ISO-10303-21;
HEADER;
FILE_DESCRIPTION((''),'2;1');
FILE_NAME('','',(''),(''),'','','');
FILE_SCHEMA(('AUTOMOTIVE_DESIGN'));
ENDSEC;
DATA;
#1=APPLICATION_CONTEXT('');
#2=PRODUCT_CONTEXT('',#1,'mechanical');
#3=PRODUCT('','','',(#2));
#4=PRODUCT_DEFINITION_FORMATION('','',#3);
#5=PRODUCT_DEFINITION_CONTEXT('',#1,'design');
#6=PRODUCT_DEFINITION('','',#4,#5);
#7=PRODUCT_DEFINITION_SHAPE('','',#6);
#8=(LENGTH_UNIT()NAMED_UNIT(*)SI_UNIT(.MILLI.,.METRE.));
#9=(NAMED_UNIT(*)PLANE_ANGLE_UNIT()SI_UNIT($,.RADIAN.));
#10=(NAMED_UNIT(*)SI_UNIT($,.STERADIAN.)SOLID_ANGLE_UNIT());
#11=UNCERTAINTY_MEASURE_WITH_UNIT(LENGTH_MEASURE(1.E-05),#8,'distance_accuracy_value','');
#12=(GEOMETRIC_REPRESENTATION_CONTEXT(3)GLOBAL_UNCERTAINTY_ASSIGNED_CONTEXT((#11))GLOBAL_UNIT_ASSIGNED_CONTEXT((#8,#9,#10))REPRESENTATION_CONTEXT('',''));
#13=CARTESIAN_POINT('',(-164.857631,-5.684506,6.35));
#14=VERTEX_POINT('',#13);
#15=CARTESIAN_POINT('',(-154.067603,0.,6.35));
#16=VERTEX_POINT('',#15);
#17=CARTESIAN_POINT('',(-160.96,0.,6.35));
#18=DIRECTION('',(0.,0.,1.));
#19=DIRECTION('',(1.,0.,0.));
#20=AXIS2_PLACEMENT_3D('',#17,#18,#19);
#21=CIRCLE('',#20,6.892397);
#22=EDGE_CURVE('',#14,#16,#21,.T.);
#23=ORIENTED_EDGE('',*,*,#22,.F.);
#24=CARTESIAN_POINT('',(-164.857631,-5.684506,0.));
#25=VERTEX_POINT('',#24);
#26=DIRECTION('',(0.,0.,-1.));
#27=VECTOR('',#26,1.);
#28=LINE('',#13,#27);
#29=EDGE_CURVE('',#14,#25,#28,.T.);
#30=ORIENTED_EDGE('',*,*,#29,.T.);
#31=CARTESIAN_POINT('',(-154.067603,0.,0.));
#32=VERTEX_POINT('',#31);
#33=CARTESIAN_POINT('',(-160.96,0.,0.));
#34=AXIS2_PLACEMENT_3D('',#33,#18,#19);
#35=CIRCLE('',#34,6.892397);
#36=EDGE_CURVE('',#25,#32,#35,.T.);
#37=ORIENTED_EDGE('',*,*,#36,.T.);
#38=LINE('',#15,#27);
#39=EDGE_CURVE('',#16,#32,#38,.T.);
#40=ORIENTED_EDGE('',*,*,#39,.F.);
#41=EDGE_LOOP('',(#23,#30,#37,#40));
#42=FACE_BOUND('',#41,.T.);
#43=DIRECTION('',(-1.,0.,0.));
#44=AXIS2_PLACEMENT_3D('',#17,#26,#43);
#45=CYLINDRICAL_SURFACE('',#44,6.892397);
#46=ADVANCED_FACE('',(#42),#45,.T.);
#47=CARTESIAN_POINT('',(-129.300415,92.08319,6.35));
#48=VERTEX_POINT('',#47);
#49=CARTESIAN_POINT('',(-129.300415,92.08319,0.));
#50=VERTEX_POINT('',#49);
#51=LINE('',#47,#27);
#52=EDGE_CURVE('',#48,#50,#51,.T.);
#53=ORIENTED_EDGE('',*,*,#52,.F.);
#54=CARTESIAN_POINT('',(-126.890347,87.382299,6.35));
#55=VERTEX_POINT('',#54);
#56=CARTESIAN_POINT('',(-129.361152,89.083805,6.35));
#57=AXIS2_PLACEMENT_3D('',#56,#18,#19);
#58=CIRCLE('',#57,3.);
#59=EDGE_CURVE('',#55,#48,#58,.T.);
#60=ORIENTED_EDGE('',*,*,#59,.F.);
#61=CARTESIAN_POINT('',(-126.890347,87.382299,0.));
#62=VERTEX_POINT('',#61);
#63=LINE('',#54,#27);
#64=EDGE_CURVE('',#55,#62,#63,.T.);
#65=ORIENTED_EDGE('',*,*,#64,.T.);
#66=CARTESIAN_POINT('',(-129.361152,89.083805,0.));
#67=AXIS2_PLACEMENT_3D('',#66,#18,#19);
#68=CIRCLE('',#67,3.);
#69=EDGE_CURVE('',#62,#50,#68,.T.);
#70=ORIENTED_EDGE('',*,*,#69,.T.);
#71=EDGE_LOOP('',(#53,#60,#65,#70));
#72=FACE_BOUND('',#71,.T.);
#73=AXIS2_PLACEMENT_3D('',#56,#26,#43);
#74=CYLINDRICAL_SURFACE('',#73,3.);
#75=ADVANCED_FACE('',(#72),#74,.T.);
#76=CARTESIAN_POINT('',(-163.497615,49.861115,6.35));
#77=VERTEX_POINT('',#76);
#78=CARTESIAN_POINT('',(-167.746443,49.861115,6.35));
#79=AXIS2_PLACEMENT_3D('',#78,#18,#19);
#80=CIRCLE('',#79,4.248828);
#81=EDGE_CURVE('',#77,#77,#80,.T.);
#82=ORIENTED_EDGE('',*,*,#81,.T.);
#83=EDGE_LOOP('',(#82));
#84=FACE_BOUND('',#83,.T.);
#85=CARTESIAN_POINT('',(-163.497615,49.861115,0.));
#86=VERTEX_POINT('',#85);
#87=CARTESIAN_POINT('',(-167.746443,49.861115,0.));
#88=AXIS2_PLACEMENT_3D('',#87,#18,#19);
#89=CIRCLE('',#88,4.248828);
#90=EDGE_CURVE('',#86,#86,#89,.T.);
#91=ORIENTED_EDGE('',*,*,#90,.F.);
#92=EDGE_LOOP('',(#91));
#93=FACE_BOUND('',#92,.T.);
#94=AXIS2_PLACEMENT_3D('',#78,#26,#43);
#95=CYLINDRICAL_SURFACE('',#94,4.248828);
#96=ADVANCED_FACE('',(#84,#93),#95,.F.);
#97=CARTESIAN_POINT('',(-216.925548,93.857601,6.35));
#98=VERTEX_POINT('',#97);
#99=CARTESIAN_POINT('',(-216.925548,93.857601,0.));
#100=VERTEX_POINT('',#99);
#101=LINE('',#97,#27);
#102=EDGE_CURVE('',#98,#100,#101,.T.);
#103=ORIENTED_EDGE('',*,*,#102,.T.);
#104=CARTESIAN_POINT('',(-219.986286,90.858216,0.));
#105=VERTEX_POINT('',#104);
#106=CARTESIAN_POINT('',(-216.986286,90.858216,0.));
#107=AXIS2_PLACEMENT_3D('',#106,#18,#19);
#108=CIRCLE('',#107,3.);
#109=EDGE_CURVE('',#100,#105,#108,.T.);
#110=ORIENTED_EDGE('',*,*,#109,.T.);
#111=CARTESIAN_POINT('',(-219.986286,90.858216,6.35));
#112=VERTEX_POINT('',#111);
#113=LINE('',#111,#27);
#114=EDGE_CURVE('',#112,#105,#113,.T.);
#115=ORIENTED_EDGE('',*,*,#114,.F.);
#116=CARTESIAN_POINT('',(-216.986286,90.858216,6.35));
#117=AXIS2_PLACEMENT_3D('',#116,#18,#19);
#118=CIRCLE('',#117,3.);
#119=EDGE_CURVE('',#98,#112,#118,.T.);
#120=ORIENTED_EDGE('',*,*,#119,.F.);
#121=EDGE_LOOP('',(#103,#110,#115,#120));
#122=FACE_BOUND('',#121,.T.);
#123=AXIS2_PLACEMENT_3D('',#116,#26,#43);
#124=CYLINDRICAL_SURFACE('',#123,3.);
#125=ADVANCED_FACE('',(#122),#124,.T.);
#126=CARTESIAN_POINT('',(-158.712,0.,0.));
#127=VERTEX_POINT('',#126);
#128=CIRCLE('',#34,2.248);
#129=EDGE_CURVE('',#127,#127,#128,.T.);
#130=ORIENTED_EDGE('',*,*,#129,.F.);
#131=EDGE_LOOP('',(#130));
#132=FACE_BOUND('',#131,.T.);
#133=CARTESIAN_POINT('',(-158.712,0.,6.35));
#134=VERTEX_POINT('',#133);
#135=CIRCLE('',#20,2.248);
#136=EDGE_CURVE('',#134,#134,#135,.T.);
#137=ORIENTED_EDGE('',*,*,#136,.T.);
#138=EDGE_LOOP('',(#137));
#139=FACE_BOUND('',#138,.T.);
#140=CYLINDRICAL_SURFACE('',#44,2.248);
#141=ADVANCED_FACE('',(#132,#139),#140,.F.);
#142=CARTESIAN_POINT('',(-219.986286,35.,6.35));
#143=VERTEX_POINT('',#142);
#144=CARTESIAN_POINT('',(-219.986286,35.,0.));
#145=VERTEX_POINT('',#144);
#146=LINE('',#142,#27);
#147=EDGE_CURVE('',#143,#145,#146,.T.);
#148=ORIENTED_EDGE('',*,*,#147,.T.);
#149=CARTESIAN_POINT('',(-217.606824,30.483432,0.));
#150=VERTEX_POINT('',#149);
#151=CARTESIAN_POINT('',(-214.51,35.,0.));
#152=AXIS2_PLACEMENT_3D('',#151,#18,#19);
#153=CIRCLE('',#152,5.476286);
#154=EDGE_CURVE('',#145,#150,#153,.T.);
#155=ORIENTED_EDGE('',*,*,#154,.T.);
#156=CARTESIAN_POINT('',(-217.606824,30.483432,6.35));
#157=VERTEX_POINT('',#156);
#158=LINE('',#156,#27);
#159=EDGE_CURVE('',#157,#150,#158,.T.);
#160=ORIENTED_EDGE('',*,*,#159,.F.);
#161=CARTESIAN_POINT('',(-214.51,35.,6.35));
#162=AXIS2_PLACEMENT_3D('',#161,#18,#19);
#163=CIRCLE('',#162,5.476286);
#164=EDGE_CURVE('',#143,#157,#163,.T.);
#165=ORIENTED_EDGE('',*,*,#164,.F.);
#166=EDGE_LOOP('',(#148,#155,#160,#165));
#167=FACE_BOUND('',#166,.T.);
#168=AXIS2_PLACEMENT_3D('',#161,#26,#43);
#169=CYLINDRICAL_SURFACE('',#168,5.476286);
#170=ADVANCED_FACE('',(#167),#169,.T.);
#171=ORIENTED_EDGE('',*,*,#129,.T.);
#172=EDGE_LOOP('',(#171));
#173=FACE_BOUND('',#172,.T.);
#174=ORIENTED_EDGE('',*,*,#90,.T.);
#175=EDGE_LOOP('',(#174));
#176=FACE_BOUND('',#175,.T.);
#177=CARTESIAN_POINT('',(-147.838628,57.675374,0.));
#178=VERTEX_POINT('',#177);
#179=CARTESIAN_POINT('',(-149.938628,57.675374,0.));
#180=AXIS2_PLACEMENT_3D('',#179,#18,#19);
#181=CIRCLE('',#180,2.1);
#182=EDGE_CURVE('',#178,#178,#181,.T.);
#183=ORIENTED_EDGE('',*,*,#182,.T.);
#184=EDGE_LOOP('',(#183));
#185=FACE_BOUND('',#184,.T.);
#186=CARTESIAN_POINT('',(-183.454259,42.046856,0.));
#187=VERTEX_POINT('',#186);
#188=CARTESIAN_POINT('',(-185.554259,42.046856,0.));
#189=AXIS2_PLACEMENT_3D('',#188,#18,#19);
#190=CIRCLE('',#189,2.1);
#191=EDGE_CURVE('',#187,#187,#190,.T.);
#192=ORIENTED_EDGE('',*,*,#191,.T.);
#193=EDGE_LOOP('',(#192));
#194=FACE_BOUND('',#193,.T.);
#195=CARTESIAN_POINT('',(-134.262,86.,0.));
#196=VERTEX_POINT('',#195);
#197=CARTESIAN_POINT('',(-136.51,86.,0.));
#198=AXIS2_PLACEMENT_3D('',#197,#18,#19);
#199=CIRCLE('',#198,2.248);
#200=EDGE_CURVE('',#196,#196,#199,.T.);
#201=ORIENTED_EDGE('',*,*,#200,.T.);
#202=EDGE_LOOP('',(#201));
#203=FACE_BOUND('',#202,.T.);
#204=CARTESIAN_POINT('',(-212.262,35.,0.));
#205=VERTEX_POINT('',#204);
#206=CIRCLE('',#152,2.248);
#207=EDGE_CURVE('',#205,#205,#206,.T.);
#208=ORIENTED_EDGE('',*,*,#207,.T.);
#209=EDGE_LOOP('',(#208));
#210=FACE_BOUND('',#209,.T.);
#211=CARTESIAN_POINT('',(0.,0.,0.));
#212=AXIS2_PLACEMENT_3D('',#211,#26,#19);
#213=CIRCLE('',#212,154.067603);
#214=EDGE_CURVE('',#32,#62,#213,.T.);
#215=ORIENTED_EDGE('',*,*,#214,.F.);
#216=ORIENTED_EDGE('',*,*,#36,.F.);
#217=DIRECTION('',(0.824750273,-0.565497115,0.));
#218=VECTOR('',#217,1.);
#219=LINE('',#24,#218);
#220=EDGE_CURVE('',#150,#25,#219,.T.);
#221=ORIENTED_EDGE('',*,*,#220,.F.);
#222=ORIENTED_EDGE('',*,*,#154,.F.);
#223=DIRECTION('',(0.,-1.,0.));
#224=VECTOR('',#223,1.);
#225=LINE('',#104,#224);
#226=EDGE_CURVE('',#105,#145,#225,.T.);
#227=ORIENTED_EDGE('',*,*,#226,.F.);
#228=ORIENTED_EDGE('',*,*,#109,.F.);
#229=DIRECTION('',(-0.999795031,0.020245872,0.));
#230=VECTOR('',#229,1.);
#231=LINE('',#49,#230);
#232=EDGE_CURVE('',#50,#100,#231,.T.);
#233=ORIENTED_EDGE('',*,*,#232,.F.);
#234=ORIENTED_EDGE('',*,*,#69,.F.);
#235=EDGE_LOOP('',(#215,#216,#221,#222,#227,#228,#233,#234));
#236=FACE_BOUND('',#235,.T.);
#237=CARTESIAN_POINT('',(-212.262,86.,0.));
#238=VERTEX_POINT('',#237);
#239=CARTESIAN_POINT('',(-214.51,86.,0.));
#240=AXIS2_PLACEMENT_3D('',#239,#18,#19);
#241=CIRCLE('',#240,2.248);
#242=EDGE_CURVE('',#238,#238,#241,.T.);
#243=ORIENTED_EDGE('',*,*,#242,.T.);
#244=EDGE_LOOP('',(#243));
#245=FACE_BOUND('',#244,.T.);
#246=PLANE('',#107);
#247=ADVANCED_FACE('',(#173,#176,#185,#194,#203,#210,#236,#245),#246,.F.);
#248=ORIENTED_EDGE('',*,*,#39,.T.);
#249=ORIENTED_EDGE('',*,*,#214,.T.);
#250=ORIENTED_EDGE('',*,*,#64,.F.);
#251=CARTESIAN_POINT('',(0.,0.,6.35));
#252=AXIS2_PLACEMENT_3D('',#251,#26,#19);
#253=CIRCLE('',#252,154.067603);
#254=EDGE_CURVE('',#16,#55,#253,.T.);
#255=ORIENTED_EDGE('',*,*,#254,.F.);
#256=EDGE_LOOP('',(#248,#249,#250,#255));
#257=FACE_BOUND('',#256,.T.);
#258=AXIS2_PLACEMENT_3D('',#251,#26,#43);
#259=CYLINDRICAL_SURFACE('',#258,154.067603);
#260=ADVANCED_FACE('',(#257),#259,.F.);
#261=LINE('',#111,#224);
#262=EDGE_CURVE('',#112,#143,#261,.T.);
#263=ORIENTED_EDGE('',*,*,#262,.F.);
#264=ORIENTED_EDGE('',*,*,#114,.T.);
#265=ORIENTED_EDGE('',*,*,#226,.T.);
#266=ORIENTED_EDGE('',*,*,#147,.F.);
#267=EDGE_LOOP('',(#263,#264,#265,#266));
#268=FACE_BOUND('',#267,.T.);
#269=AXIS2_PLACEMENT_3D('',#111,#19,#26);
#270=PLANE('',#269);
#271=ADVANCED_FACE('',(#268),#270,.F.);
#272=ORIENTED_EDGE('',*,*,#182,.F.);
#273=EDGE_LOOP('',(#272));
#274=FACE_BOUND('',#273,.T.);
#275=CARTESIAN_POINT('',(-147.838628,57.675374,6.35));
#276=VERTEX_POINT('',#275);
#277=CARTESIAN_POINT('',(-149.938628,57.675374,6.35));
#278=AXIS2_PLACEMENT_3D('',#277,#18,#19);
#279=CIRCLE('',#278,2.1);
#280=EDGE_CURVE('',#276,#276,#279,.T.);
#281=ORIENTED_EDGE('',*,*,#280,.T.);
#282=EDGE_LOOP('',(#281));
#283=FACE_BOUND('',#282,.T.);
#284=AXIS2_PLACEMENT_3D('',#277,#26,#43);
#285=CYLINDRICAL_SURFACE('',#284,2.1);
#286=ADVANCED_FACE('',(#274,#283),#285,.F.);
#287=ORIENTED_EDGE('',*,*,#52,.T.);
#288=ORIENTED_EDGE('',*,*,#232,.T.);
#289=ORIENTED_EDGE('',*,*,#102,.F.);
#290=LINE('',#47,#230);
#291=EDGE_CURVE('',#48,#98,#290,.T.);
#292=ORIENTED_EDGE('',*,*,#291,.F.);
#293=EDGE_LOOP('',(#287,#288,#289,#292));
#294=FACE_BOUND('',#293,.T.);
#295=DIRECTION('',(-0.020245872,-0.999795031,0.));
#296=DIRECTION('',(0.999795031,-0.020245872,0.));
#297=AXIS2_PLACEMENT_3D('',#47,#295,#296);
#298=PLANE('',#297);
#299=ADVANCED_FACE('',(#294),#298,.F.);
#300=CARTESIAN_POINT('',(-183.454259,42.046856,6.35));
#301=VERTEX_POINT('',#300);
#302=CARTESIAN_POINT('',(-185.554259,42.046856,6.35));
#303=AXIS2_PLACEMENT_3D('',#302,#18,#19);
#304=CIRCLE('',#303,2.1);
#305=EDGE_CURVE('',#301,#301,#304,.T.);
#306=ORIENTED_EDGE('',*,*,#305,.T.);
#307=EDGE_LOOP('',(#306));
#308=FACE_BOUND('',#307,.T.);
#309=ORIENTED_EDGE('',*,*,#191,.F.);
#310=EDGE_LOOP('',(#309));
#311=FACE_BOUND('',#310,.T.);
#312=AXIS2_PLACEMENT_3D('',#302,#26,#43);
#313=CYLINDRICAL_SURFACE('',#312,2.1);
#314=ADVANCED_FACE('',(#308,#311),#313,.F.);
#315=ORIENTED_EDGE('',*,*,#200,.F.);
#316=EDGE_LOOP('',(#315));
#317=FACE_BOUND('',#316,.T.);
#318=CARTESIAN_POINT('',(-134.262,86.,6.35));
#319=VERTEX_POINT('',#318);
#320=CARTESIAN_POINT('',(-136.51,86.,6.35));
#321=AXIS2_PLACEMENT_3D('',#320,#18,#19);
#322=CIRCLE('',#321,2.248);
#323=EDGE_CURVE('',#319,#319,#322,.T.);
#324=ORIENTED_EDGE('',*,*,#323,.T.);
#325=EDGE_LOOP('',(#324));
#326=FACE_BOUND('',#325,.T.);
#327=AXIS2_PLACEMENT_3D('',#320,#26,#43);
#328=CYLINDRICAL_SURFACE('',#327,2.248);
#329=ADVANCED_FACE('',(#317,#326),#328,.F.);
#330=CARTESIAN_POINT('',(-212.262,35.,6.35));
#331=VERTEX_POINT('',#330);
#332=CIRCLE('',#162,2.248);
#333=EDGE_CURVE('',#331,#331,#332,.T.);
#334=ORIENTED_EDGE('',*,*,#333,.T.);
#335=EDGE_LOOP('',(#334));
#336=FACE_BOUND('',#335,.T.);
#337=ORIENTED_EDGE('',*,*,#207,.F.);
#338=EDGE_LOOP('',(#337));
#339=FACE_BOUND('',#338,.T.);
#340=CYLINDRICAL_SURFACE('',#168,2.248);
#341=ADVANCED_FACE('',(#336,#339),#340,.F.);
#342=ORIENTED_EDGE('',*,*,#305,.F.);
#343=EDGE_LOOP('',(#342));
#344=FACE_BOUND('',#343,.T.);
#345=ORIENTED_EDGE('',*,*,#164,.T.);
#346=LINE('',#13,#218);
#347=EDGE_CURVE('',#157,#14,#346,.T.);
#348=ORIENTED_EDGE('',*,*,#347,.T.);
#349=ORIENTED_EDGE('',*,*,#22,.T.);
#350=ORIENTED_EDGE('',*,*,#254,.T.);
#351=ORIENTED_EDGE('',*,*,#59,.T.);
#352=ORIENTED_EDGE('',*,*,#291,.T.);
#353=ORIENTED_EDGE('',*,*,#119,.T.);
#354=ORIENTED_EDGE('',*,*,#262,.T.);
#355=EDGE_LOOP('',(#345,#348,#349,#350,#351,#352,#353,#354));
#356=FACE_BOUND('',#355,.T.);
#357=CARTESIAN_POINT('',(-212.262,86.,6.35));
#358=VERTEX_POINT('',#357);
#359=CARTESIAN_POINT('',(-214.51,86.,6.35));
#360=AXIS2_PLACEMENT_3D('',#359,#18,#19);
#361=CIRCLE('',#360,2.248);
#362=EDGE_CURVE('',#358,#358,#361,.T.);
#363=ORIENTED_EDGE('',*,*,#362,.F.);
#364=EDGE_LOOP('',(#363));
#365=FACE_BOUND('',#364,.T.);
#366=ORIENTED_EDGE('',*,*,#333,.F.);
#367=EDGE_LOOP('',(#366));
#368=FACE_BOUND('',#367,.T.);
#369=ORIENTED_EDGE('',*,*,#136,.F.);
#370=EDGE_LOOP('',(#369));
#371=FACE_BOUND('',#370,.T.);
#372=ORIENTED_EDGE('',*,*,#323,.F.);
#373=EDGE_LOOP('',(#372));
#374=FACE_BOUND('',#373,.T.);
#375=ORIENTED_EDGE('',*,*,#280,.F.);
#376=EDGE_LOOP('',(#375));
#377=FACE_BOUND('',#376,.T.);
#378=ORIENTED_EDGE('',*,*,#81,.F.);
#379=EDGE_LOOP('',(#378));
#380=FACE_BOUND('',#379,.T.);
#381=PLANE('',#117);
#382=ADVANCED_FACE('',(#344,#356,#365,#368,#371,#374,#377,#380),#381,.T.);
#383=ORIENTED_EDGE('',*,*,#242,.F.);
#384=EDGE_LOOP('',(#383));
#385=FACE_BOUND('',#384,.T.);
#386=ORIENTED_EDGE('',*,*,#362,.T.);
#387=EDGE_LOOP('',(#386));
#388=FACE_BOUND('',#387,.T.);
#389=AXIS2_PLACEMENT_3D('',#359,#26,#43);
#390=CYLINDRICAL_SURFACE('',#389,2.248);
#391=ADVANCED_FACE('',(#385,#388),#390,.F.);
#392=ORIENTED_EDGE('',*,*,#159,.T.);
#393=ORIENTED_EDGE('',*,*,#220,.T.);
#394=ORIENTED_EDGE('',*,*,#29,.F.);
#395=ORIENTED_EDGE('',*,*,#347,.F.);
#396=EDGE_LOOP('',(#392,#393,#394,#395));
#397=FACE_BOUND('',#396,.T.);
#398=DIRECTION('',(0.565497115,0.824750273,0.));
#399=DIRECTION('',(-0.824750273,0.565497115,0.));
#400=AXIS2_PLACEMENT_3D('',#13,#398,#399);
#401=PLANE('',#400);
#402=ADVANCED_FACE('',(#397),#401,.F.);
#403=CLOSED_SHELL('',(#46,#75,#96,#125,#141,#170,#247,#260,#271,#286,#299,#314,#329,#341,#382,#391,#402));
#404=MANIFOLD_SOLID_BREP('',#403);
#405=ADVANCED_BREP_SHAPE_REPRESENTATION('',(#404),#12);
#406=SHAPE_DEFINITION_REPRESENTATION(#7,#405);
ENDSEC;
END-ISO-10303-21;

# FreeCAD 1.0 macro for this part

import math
import FreeCAD as App
import Part
import Sketcher

V = App.Vector
Q = App.Units.Quantity

doc = App.newDocument("Part")
body = doc.addObject("PartDesign::Body", "Body")

# Sketch on XY plane
sketch1 = body.newObject("Sketcher::SketchObject", "Sketch")
sketch1.AttachmentSupport = (doc.getObject("XY_Plane"), [""])
sketch1.MapMode = "FlatFace"
sketch1.addGeometry(Part.LineSegment(V(-217.606824, 30.483432, 0), V(-164.857631, -5.684506, 0)), False)
sketch1.addGeometry(Part.ArcOfCircle(Part.Circle(V(-160.96, 0, 0), V(0, 0, 1), 6.892397), math.radians(-124.436819), math.radians(0)), False)
sketch1.addGeometry(Part.ArcOfCircle(Part.Circle(V(0, 0, 0), V(0, 0, 1), 154.067603), math.radians(145.446985), math.radians(180)), False)
sketch1.addGeometry(Part.ArcOfCircle(Part.Circle(V(-129.361152, 89.083805, 0), V(0, 0, 1), 3), math.radians(-34.553015), math.radians(88.839918)), False)
sketch1.addGeometry(Part.LineSegment(V(-129.300415, 92.08319, 0), V(-216.925548, 93.857601, 0)), False)
sketch1.addGeometry(Part.ArcOfCircle(Part.Circle(V(-216.986286, 90.858216, 0), V(0, 0, 1), 3), math.radians(88.839918), math.radians(180)), False)
sketch1.addGeometry(Part.LineSegment(V(-219.986286, 90.858216, 0), V(-219.986286, 35, 0)), False)
sketch1.addGeometry(Part.ArcOfCircle(Part.Circle(V(-214.51, 35, 0), V(0, 0, 1), 5.476286), math.radians(180), math.radians(235.563181)), False)
sketch1.addGeometry(Part.Circle(V(-160.96, 0, 0), V(0, 0, 1), 2.248), False)
sketch1.addGeometry(Part.Circle(V(-185.554259, 42.046856, 0), V(0, 0, 1), 2.1), False)
sketch1.addGeometry(Part.Circle(V(-214.51, 35, 0), V(0, 0, 1), 2.248), False)
sketch1.addGeometry(Part.Circle(V(-149.938628, 57.675374, 0), V(0, 0, 1), 2.1), False)
sketch1.addGeometry(Part.Circle(V(-167.746443, 49.861115, 0), V(0, 0, 1), 4.248828), False)
sketch1.addGeometry(Part.Circle(V(-136.51, 86, 0), V(0, 0, 1), 2.248), False)
sketch1.addGeometry(Part.Circle(V(-214.51, 86, 0), V(0, 0, 1), 2.248), False)
sketch1.addConstraint(Sketcher.Constraint("Tangent", 0, 2, 1, 1))
sketch1.addConstraint(Sketcher.Constraint("Tangent", 1, 2, 2, 2))
sketch1.addConstraint(Sketcher.Constraint("Tangent", 2, 1, 3, 1))
sketch1.addConstraint(Sketcher.Constraint("Tangent", 3, 2, 4, 1))
sketch1.addConstraint(Sketcher.Constraint("Tangent", 4, 2, 5, 1))
sketch1.addConstraint(Sketcher.Constraint("Tangent", 5, 2, 6, 1))
sketch1.addConstraint(Sketcher.Constraint("Tangent", 6, 2, 7, 1))
sketch1.addConstraint(Sketcher.Constraint("Tangent", 7, 2, 0, 1))
sketch1.addConstraint(Sketcher.Constraint("Vertical", 6))
sketch1.addConstraint(Sketcher.Constraint("Coincident", 2, 3, -1, 1))
sketch1.addConstraint(Sketcher.Constraint("Coincident", 8, 3, 1, 3))
sketch1.addConstraint(Sketcher.Constraint("Coincident", 10, 3, 7, 3))
sketch1.addConstraint(Sketcher.Constraint("Equal", 3, 5))
sketch1.addConstraint(Sketcher.Constraint("Equal", 8, 10))
sketch1.addConstraint(Sketcher.Constraint("Equal", 9, 11))
sketch1.addConstraint(Sketcher.Constraint("Equal", 10, 13))
sketch1.addConstraint(Sketcher.Constraint("Equal", 13, 14))
sketch1.addConstraint(Sketcher.Constraint("PointOnObject", 1, 3, -1))
sketch1.addConstraint(Sketcher.Constraint("Horizontal", 13, 3, 14, 3))
sketch1.addConstraint(Sketcher.Constraint("Vertical", 10, 3, 14, 3))
sketch1.addConstraint(Sketcher.Constraint("Radius", 3, Q("3 mm")))
sketch1.addConstraint(Sketcher.Constraint("Diameter", 9, Q("4.2 mm")))
sketch1.addConstraint(Sketcher.Constraint("Diameter", 8, Q("4.496 mm")))
sketch1.addConstraint(Sketcher.Constraint("DistanceY", -1, 1, 7, 3, Q("35 mm")))
sketch1.addConstraint(Sketcher.Constraint("DistanceY", -1, 1, 13, 3, Q("86 mm")))
sketch1.addConstraint(Sketcher.Constraint("DistanceX", 1, 3, -1, 1, Q("160.96 mm")))
sketch1.addConstraint(Sketcher.Constraint("DistanceX", 7, 3, -1, 1, Q("214.51 mm")))
sketch1.addConstraint(Sketcher.Constraint("DistanceX", 13, 3, -1, 1, Q("136.51 mm")))
sketch1.addConstraint(Sketcher.Constraint("Diameter", 12, Q("8.497657 mm")))
sketch1.addConstraint(Sketcher.Constraint("Radius", 1, Q("6.892397 mm")))
sketch1.addConstraint(Sketcher.Constraint("Radius", 7, Q("5.476286 mm")))
sketch1.addConstraint(Sketcher.Constraint("DistanceY", -1, 1, 2, 1, Q("87.382299 mm")))
sketch1.addConstraint(Sketcher.Constraint("DistanceY", -1, 1, 4, 2, Q("93.857601 mm")))
sketch1.addConstraint(Sketcher.Constraint("DistanceX", 9, 3, -1, 1, Q("185.554259 mm")))
sketch1.addConstraint(Sketcher.Constraint("DistanceY", 9, 3, 5, 3, Q("48.81136 mm")))
sketch1.addConstraint(Sketcher.Constraint("DistanceY", 11, 3, 3, 3, Q("31.40843 mm")))
sketch1.addConstraint(Sketcher.Constraint("DistanceX", 9, 3, 11, 3, Q("35.615631 mm")))
sketch1.addConstraint(Sketcher.Constraint("DistanceY", 12, 3, 11, 3, Q("7.814259 mm")))
sketch1.addConstraint(Sketcher.Constraint("DistanceX", 12, 3, 1, 2, Q("13.67884 mm")))
pad1 = body.newObject("PartDesign::Pad", "Pad")
pad1.Profile = sketch1
pad1.Length = 6.35

doc.recompute()
